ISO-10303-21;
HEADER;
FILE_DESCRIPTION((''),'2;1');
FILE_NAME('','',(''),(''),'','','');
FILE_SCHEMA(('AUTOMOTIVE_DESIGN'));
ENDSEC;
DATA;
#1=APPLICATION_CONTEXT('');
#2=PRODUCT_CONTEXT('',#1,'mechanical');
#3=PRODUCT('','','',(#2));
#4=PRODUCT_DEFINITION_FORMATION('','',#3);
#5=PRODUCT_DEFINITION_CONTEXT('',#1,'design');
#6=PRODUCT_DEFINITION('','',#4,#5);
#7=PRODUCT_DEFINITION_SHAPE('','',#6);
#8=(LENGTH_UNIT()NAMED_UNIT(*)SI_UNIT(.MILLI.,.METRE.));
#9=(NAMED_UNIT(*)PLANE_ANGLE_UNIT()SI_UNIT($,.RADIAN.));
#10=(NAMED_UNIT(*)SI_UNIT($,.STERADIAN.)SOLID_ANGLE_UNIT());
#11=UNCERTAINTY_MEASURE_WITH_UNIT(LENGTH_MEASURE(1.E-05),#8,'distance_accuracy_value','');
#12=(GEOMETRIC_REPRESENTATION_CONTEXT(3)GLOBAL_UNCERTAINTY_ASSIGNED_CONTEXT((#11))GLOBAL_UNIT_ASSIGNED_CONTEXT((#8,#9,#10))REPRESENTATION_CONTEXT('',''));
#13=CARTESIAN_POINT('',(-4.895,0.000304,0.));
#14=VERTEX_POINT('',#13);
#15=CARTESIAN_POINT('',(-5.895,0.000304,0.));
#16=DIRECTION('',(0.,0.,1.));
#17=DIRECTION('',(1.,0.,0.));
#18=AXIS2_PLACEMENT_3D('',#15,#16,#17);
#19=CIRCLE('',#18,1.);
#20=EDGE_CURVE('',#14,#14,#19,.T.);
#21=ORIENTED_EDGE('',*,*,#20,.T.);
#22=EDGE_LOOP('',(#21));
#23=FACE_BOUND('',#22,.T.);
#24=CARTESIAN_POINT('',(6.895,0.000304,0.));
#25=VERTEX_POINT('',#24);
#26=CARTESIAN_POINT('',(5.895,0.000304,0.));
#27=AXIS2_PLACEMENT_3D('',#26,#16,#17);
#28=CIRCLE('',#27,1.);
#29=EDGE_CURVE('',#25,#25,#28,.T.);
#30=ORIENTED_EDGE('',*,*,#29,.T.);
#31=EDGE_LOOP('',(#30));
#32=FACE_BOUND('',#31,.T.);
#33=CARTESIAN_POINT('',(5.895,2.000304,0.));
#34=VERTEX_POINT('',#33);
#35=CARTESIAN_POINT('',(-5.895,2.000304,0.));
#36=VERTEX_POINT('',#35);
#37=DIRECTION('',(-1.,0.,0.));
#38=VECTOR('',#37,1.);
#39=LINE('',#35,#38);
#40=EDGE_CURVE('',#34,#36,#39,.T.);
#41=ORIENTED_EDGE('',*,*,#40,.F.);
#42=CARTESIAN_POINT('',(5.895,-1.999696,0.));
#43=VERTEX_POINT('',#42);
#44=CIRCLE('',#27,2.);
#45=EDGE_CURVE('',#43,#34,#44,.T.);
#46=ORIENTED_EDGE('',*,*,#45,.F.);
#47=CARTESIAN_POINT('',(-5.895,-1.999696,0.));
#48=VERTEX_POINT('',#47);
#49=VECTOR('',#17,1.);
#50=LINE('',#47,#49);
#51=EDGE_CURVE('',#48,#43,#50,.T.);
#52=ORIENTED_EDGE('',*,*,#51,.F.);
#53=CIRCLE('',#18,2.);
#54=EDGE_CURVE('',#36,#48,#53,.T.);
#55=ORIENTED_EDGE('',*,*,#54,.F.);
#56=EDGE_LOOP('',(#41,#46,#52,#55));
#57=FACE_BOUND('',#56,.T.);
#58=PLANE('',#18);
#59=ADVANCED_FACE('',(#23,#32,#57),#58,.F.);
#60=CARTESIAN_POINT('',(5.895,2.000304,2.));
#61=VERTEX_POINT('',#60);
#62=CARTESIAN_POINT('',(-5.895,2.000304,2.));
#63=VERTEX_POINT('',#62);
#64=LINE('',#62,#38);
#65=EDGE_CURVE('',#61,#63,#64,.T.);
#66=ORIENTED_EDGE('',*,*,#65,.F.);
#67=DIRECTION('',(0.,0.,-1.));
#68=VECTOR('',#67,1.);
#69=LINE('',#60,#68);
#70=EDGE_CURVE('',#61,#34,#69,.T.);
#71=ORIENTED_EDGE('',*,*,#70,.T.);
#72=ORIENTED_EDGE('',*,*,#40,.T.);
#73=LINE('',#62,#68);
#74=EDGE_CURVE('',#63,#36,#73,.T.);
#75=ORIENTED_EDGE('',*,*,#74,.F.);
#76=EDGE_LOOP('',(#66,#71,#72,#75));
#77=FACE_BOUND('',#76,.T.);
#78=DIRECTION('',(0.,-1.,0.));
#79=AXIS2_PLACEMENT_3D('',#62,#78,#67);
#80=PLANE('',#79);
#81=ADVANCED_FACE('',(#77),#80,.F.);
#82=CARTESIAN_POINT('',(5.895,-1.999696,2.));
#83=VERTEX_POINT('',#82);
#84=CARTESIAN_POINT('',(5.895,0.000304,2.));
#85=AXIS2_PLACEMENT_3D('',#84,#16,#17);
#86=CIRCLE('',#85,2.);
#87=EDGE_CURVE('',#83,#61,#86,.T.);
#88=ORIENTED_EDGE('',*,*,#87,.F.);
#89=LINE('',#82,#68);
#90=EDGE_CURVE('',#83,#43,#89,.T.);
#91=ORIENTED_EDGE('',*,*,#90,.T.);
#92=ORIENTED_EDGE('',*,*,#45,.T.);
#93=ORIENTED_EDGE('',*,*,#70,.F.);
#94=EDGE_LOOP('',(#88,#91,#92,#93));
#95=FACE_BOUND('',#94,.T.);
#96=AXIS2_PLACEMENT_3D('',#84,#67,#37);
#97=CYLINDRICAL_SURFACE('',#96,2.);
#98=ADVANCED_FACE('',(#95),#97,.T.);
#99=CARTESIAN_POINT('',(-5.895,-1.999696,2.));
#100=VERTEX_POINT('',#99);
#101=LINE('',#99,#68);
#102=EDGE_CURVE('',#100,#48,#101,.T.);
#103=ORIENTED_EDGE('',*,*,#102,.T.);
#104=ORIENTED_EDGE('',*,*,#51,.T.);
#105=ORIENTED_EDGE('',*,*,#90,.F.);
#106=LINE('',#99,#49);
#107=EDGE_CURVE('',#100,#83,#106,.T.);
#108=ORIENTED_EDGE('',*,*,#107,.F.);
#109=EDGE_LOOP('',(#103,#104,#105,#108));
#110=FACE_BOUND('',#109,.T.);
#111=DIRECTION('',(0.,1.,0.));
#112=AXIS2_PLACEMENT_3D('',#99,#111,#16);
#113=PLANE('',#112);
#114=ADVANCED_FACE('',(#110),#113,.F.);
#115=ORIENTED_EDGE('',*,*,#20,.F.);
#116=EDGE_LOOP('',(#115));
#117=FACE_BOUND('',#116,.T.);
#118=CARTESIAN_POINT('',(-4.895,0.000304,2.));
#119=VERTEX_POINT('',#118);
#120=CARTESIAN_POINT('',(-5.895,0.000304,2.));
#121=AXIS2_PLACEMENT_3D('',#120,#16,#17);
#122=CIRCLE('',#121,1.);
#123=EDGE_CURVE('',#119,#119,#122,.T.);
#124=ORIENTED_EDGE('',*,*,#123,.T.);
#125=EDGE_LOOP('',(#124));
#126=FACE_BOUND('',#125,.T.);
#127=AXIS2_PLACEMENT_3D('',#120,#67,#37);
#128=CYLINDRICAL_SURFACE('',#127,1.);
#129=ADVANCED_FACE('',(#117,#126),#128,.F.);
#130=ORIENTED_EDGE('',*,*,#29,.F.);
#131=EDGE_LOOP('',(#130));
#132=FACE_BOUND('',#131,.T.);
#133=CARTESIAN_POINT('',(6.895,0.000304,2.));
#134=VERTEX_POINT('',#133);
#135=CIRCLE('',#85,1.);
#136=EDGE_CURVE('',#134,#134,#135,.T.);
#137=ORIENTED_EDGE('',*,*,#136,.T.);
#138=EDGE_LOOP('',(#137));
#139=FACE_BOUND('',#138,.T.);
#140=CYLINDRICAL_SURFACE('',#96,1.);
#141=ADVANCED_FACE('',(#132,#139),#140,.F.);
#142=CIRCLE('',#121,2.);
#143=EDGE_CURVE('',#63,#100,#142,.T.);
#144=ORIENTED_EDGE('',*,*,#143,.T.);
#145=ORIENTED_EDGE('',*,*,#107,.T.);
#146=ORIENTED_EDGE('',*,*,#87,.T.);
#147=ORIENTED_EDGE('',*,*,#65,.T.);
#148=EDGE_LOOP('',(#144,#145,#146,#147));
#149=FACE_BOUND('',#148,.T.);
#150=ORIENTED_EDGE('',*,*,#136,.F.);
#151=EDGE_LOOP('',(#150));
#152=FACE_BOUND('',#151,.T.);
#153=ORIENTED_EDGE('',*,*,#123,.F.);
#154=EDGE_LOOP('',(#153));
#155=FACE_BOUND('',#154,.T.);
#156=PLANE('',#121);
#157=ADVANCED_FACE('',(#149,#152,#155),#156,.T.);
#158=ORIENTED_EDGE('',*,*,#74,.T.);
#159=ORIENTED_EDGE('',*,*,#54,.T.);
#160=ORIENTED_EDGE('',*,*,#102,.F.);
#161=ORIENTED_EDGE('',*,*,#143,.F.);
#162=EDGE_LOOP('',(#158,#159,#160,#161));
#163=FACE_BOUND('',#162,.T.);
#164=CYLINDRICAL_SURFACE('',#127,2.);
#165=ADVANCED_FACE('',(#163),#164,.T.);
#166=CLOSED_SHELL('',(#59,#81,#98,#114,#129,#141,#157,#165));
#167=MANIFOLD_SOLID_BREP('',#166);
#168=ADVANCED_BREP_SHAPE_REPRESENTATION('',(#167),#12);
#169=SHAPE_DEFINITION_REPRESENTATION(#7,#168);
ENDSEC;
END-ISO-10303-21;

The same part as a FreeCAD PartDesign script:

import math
import FreeCAD as App
import Part
import Sketcher
from FreeCAD import Vector

doc = App.newDocument("Part")
body = doc.addObject("PartDesign::Body", "Body")

# Sketch on XY plane
sketch1 = body.newObject("Sketcher::SketchObject", "Sketch")
sketch1.AttachmentSupport = (doc.getObject("XY_Plane"), [""])
sketch1.MapMode = "FlatFace"
sketch1.addGeometry([
    Part.LineSegment(Vector(5.9, 2, 0), Vector(-5.9, 2, 0)),  # 0
    Part.ArcOfCircle(Part.Circle(Vector(-5.9, 0, 0), Vector(0, 0, 1), 2), math.radians(90), math.radians(270)),  # 1
    Part.LineSegment(Vector(-5.9, -2, 0), Vector(5.9, -2, 0)),  # 2
    Part.ArcOfCircle(Part.Circle(Vector(5.9, 0, 0), Vector(0, 0, 1), 2), math.radians(-90), math.radians(90)),  # 3
    Part.Circle(Vector(5.9, 0, 0), Vector(0, 0, 1), 1),  # 4
    Part.Circle(Vector(-5.9, 0, 0), Vector(0, 0, 1), 1),  # 5
], False)
sketch1.addConstraint([
    Sketcher.Constraint("Tangent", 0, 2, 1, 1),
    Sketcher.Constraint("Tangent", 1, 2, 2, 1),
    Sketcher.Constraint("Tangent", 2, 2, 3, 1),
    Sketcher.Constraint("Tangent", 3, 2, 0, 1),
    Sketcher.Constraint("Horizontal", 0),
    Sketcher.Constraint("Horizontal", 2),
    Sketcher.Constraint("Coincident", 4, 3, 3, 3),
    Sketcher.Constraint("Coincident", 5, 3, 1, 3),
    Sketcher.Constraint("Equal", 4, 5),
    Sketcher.Constraint("Diameter", 4, 2.0),
    Sketcher.Constraint("Radius", 1, 2.0),
    Sketcher.Constraint("DistanceX", 0, 2, 0, 1, 11.79),
    Sketcher.Constraint("DistanceX", 1, 3, -1, 1, 5.895),
    Sketcher.Constraint("DistanceY", -1, 1, 1, 3, 0.000304),
])
pad1 = body.newObject("PartDesign::Pad", "Pad")
pad1.Profile = sketch1
pad1.Length = 2

doc.recompute()
